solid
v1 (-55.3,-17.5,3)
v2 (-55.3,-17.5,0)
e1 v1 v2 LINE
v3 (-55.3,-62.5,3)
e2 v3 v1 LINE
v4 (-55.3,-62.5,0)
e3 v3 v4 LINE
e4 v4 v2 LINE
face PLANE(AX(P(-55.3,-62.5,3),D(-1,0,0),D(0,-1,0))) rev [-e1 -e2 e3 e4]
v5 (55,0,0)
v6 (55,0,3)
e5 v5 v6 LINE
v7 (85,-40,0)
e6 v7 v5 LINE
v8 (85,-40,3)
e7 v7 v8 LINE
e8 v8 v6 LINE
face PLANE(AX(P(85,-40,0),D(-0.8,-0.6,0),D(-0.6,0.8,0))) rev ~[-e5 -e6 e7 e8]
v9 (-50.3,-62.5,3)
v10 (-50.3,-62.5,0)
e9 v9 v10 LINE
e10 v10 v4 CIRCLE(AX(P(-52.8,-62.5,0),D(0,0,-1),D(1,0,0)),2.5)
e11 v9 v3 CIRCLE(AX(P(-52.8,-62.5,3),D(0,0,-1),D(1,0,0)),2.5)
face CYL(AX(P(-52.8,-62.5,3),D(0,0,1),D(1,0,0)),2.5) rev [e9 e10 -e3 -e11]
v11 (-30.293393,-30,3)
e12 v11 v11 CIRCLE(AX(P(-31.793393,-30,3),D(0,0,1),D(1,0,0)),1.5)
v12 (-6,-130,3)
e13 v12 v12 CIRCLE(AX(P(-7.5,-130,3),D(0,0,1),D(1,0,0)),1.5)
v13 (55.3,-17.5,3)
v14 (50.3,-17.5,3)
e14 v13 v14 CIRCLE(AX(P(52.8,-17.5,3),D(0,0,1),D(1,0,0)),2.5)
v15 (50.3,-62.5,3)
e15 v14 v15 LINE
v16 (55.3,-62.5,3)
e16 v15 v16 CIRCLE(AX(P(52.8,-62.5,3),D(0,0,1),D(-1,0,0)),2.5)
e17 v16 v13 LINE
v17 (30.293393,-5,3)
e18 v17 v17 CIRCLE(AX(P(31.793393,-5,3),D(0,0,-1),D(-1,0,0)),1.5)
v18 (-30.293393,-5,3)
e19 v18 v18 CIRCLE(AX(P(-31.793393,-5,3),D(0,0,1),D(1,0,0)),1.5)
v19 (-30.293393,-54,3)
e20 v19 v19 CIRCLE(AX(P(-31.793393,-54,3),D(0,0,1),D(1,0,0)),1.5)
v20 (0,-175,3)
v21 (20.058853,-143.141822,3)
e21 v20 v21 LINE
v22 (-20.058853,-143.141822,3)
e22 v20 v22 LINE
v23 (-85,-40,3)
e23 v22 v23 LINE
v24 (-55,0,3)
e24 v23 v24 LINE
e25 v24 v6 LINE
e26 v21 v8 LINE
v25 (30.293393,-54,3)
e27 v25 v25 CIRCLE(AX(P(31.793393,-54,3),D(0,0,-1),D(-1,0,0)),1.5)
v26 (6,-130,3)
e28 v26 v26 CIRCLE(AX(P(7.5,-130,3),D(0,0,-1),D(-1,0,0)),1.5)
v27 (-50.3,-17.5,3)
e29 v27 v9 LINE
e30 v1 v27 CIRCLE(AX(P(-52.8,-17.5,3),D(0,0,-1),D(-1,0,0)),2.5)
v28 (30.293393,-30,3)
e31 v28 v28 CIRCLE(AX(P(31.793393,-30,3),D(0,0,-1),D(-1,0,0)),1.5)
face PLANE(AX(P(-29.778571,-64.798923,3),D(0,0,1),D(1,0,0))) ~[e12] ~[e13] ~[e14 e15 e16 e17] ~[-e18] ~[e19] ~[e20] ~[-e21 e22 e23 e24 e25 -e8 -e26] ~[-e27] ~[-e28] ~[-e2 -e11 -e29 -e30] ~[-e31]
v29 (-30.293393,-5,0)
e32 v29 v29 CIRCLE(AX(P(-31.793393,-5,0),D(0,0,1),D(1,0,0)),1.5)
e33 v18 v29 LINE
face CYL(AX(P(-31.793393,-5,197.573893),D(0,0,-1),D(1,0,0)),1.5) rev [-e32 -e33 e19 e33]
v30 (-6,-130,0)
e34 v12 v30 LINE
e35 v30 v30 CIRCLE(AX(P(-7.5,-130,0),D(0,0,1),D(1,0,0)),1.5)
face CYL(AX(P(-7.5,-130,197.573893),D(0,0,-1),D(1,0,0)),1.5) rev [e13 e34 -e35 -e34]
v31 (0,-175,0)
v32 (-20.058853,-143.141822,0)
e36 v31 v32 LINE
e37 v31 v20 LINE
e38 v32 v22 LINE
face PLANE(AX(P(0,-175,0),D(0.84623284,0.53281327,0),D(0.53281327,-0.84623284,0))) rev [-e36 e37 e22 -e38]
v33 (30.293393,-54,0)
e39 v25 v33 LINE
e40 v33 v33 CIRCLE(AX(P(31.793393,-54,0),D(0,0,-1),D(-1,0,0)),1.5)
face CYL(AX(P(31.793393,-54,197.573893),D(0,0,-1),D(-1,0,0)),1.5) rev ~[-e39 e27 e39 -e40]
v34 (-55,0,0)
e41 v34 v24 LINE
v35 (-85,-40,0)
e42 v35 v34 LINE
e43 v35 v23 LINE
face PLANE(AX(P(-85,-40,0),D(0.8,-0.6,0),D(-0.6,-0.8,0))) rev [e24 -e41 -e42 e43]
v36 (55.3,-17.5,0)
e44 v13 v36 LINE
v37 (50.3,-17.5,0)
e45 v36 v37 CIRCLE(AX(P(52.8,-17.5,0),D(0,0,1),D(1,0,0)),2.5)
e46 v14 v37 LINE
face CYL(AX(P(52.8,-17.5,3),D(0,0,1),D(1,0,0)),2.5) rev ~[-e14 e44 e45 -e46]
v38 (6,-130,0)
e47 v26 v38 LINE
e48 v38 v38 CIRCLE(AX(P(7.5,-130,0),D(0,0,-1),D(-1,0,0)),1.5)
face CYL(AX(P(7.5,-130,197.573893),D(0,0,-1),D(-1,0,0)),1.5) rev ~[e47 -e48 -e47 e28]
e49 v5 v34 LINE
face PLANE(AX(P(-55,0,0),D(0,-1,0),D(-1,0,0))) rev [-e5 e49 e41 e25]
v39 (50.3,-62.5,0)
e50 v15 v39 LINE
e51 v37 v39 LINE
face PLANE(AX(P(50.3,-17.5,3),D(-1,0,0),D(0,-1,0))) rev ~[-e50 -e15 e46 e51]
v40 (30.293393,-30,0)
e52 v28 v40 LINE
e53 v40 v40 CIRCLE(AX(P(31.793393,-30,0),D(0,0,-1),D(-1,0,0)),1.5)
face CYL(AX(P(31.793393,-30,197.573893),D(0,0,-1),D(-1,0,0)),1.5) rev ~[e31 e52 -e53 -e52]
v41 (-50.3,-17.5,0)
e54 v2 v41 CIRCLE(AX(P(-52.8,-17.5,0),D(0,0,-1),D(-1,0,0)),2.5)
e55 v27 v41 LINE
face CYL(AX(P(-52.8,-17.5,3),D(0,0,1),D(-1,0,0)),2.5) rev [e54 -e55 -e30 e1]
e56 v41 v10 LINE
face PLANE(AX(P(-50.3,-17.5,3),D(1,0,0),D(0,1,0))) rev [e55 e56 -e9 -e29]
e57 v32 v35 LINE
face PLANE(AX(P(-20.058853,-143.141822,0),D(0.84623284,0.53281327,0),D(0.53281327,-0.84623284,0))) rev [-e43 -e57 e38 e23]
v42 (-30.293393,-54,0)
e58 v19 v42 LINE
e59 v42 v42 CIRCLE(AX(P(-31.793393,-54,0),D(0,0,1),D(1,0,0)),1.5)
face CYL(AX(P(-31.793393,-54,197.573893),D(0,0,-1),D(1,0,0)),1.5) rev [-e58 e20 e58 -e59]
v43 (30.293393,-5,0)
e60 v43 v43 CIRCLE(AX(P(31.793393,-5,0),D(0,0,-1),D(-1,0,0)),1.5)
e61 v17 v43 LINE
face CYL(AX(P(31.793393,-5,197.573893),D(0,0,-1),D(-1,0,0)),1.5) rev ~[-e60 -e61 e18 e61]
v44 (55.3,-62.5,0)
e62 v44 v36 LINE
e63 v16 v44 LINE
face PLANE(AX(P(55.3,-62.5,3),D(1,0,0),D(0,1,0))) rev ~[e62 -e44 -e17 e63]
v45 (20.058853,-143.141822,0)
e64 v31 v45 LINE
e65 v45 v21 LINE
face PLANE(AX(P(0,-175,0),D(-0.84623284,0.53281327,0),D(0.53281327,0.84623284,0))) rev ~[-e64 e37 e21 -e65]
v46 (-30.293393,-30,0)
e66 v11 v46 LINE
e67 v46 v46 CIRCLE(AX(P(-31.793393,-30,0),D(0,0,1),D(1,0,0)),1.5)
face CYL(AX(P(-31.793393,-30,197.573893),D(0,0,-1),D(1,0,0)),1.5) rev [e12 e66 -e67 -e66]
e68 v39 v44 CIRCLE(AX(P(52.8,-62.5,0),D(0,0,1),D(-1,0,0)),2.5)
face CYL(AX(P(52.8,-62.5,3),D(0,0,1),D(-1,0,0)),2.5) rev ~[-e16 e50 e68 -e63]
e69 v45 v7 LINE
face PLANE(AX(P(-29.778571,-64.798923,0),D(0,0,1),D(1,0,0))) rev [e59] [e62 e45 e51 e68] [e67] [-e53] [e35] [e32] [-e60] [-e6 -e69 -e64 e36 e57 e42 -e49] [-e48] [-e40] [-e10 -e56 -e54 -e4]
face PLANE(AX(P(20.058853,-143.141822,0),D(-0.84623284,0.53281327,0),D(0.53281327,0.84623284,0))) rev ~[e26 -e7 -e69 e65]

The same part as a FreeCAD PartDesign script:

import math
import FreeCAD as App
import Part
import Sketcher


def add_polygon(sketch, points):
    """Adds a closed chain of lines whose ends are joined by coincident constraints."""
    first, n = sketch.GeometryCount, len(points)
    for a, b in zip(points, points[1:] + points[:1]):
        sketch.addGeometry(Part.LineSegment(App.Vector(*a, 0), App.Vector(*b, 0)), False)
    for i in range(n):
        sketch.addConstraint(Sketcher.Constraint("Coincident", first + i, 2, first + (i + 1) % n, 1))

doc = App.newDocument("Part")
params = doc.addObject("Spreadsheet::Sheet", "Params")
for row, (alias, value) in enumerate([
    ("sketch1_width", "55 mm"),
    ("sketch1_height", "175 mm"),
    ("sketch1_length", "50 mm"),
    ("pad1_length", "3 mm"),
    ("sketch2_diameter", "3 mm"),
    ("hole_diameter", "3 mm"),
    ("sketch3_diameter", "3 mm"),
    ("hole2_diameter", "3 mm"),
    ("sketch4_radius", "2.5 mm"),
    ("sketch4_height", "45 mm"),
    ("pocket1_length", "34.37338 mm"),
], start=1):
    params.set(f"A{row}", alias)
    params.set(f"B{row}", "=" + value)
    params.setAlias(f"B{row}", alias)

body = doc.addObject("PartDesign::Body", "Body")

# Sketch on XY plane
sketch1 = body.newObject("Sketcher::SketchObject", "Sketch")
sketch1.AttachmentSupport = (doc.getObject("XY_Plane"), [""])
sketch1.MapMode = "FlatFace"
add_polygon(sketch1, [(55, 0), (0, 0), (0, -175), (20, -143), (85, -40)])  # lines 0-4
sketch1.addConstraint([
    Sketcher.Constraint("Horizontal", 0),
    Sketcher.Constraint("Vertical", 1),
    Sketcher.Constraint("Coincident", 0, 2, -1, 1),
    Sketcher.Constraint("Parallel", 2, 3),
    Sketcher.Constraint("DistanceX", 0, 2, 0, 1, 55.0),
    Sketcher.Constraint("DistanceY", 1, 2, 1, 1, 175.0),
    Sketcher.Constraint("Distance", 4, 50.0),
    Sketcher.Constraint("DistanceX", -1, 1, 3, 2, 85.0),
    Sketcher.Constraint("Distance", 2, 37.647059),
])
sketch1.setExpression("Constraints[9]", "Params.sketch1_width")
sketch1.setExpression("Constraints[10]", "Params.sketch1_height")
sketch1.setExpression("Constraints[11]", "Params.sketch1_length")
pad1 = body.newObject("PartDesign::Pad", "Pad")
pad1.Profile = sketch1
pad1.setExpression("Length", "Params.pad1_length")

# Sketch on XY plane
sketch2 = body.newObject("Sketcher::SketchObject", "Sketch001")
sketch2.AttachmentSupport = (doc.getObject("XY_Plane"), [""])
sketch2.MapMode = "FlatFace"
sketch2.AttachmentOffset = App.Placement(App.Vector(0, 0, 3), App.Rotation())
sketch2.addGeometry(Part.Circle(App.Vector(7.5, -130, 0), App.Vector(0, 0, 1), 1.5), False)
sketch2.addConstraint([
    Sketcher.Constraint("Diameter", 0, 3.0),
    Sketcher.Constraint("DistanceY", 0, 3, -1, 1, 130.0),
    Sketcher.Constraint("DistanceX", -1, 1, 0, 3, 7.5),
])
sketch2.setExpression("Constraints[0]", "Params.sketch2_diameter")
doc.recompute()
hole = body.newObject("PartDesign::Hole", "Hole")
hole.Profile = sketch2
hole.ThreadType = "None"
hole.setExpression("Diameter", "Params.hole_diameter")
hole.DepthType = "ThroughAll"

# Sketch on XY plane
sketch3 = body.newObject("Sketcher::SketchObject", "Sketch002")
sketch3.AttachmentSupport = (doc.getObject("XY_Plane"), [""])
sketch3.MapMode = "FlatFace"
sketch3.AttachmentOffset = App.Placement(App.Vector(0, 0, 3), App.Rotation())
sketch3.addGeometry([
    Part.Circle(App.Vector(31.8, -30, 0), App.Vector(0, 0, 1), 1.5),
    Part.Circle(App.Vector(31.8, -54, 0), App.Vector(0, 0, 1), 1.5),
    Part.Circle(App.Vector(31.8, -5, 0), App.Vector(0, 0, 1), 1.5),
], False)
sketch3.addConstraint([
    Sketcher.Constraint("Equal", 0, 1),
    Sketcher.Constraint("Equal", 1, 2),
    Sketcher.Constraint("Vertical", 0, 3, 1, 3),
    Sketcher.Constraint("Vertical", 1, 3, 2, 3),
    Sketcher.Constraint("Diameter", 0, 3.0),
    Sketcher.Constraint("DistanceY", 0, 3, -1, 1, 30.0),
    Sketcher.Constraint("DistanceY", 1, 3, -1, 1, 54.0),
    Sketcher.Constraint("DistanceY", 2, 3, -1, 1, 5.0),
    Sketcher.Constraint("DistanceX", -1, 1, 0, 3, 31.793393),
])
sketch3.setExpression("Constraints[4]", "Params.sketch3_diameter")
doc.recompute()
hole2 = body.newObject("PartDesign::Hole", "Hole001")
hole2.Profile = sketch3
hole2.ThreadType = "None"
hole2.setExpression("Diameter", "Params.hole2_diameter")
hole2.DepthType = "ThroughAll"

# Sketch on XY plane
sketch4 = body.newObject("Sketcher::SketchObject", "Sketch003")
sketch4.AttachmentSupport = (doc.getObject("XY_Plane"), [""])
sketch4.MapMode = "FlatFace"
sketch4.AttachmentOffset = App.Placement(App.Vector(0, 0, 3), App.Rotation())
sketch4.addGeometry([
    Part.ArcOfCircle(Part.Circle(App.Vector(52.8, -17.5, 0), App.Vector(0, 0, 1), 2.5), math.radians(0), math.radians(180)),
    Part.LineSegment(App.Vector(50.3, -17.5, 0), App.Vector(50.3, -62.5, 0)),
    Part.ArcOfCircle(Part.Circle(App.Vector(52.8, -62.5, 0), App.Vector(0, 0, 1), 2.5), math.radians(180), math.radians(360)),
    Part.LineSegment(App.Vector(55.3, -62.5, 0), App.Vector(55.3, -17.5, 0)),
], False)
sketch4.addConstraint([
    Sketcher.Constraint("Tangent", 0, 2, 1, 1),
    Sketcher.Constraint("Tangent", 1, 2, 2, 1),
    Sketcher.Constraint("Tangent", 2, 2, 3, 1),
    Sketcher.Constraint("Tangent", 3, 2, 0, 1),
    Sketcher.Constraint("Vertical", 1),
    Sketcher.Constraint("Vertical", 3),
    Sketcher.Constraint("Radius", 0, 2.5),
    Sketcher.Constraint("DistanceY", 1, 2, 1, 1, 45.0),
    Sketcher.Constraint("DistanceX", -1, 1, 0, 3, 52.8),
    Sketcher.Constraint("DistanceY", 0, 3, -1, 1, 17.5),
])
sketch4.setExpression("Constraints[6]", "Params.sketch4_radius")
sketch4.setExpression("Constraints[7]", "Params.sketch4_height")
pocket1 = body.newObject("PartDesign::Pocket", "Pocket")
pocket1.Profile = sketch4
pocket1.setExpression("Length", "Params.pocket1_length")
body2 = doc.addObject("PartDesign::Body", "Body001")
doc.recompute()

body2.BaseFeature = body
doc.recompute()

mirroring = doc.addObject("Part::Mirroring", "Mirroring")
mirroring.Source = body
mirroring.Base = App.Vector(0, 0, 0)
mirroring.Normal = App.Vector(1, 0, 0)
body3 = doc.addObject("PartDesign::Body", "Body002")
body3.BaseFeature = mirroring
boolean = body2.newObject("PartDesign::Boolean", "Boolean")
boolean.Type = "Fuse"
boolean.addObjects([body3])
doc.recompute()
mirroring.Visibility = False

doc.recompute()
